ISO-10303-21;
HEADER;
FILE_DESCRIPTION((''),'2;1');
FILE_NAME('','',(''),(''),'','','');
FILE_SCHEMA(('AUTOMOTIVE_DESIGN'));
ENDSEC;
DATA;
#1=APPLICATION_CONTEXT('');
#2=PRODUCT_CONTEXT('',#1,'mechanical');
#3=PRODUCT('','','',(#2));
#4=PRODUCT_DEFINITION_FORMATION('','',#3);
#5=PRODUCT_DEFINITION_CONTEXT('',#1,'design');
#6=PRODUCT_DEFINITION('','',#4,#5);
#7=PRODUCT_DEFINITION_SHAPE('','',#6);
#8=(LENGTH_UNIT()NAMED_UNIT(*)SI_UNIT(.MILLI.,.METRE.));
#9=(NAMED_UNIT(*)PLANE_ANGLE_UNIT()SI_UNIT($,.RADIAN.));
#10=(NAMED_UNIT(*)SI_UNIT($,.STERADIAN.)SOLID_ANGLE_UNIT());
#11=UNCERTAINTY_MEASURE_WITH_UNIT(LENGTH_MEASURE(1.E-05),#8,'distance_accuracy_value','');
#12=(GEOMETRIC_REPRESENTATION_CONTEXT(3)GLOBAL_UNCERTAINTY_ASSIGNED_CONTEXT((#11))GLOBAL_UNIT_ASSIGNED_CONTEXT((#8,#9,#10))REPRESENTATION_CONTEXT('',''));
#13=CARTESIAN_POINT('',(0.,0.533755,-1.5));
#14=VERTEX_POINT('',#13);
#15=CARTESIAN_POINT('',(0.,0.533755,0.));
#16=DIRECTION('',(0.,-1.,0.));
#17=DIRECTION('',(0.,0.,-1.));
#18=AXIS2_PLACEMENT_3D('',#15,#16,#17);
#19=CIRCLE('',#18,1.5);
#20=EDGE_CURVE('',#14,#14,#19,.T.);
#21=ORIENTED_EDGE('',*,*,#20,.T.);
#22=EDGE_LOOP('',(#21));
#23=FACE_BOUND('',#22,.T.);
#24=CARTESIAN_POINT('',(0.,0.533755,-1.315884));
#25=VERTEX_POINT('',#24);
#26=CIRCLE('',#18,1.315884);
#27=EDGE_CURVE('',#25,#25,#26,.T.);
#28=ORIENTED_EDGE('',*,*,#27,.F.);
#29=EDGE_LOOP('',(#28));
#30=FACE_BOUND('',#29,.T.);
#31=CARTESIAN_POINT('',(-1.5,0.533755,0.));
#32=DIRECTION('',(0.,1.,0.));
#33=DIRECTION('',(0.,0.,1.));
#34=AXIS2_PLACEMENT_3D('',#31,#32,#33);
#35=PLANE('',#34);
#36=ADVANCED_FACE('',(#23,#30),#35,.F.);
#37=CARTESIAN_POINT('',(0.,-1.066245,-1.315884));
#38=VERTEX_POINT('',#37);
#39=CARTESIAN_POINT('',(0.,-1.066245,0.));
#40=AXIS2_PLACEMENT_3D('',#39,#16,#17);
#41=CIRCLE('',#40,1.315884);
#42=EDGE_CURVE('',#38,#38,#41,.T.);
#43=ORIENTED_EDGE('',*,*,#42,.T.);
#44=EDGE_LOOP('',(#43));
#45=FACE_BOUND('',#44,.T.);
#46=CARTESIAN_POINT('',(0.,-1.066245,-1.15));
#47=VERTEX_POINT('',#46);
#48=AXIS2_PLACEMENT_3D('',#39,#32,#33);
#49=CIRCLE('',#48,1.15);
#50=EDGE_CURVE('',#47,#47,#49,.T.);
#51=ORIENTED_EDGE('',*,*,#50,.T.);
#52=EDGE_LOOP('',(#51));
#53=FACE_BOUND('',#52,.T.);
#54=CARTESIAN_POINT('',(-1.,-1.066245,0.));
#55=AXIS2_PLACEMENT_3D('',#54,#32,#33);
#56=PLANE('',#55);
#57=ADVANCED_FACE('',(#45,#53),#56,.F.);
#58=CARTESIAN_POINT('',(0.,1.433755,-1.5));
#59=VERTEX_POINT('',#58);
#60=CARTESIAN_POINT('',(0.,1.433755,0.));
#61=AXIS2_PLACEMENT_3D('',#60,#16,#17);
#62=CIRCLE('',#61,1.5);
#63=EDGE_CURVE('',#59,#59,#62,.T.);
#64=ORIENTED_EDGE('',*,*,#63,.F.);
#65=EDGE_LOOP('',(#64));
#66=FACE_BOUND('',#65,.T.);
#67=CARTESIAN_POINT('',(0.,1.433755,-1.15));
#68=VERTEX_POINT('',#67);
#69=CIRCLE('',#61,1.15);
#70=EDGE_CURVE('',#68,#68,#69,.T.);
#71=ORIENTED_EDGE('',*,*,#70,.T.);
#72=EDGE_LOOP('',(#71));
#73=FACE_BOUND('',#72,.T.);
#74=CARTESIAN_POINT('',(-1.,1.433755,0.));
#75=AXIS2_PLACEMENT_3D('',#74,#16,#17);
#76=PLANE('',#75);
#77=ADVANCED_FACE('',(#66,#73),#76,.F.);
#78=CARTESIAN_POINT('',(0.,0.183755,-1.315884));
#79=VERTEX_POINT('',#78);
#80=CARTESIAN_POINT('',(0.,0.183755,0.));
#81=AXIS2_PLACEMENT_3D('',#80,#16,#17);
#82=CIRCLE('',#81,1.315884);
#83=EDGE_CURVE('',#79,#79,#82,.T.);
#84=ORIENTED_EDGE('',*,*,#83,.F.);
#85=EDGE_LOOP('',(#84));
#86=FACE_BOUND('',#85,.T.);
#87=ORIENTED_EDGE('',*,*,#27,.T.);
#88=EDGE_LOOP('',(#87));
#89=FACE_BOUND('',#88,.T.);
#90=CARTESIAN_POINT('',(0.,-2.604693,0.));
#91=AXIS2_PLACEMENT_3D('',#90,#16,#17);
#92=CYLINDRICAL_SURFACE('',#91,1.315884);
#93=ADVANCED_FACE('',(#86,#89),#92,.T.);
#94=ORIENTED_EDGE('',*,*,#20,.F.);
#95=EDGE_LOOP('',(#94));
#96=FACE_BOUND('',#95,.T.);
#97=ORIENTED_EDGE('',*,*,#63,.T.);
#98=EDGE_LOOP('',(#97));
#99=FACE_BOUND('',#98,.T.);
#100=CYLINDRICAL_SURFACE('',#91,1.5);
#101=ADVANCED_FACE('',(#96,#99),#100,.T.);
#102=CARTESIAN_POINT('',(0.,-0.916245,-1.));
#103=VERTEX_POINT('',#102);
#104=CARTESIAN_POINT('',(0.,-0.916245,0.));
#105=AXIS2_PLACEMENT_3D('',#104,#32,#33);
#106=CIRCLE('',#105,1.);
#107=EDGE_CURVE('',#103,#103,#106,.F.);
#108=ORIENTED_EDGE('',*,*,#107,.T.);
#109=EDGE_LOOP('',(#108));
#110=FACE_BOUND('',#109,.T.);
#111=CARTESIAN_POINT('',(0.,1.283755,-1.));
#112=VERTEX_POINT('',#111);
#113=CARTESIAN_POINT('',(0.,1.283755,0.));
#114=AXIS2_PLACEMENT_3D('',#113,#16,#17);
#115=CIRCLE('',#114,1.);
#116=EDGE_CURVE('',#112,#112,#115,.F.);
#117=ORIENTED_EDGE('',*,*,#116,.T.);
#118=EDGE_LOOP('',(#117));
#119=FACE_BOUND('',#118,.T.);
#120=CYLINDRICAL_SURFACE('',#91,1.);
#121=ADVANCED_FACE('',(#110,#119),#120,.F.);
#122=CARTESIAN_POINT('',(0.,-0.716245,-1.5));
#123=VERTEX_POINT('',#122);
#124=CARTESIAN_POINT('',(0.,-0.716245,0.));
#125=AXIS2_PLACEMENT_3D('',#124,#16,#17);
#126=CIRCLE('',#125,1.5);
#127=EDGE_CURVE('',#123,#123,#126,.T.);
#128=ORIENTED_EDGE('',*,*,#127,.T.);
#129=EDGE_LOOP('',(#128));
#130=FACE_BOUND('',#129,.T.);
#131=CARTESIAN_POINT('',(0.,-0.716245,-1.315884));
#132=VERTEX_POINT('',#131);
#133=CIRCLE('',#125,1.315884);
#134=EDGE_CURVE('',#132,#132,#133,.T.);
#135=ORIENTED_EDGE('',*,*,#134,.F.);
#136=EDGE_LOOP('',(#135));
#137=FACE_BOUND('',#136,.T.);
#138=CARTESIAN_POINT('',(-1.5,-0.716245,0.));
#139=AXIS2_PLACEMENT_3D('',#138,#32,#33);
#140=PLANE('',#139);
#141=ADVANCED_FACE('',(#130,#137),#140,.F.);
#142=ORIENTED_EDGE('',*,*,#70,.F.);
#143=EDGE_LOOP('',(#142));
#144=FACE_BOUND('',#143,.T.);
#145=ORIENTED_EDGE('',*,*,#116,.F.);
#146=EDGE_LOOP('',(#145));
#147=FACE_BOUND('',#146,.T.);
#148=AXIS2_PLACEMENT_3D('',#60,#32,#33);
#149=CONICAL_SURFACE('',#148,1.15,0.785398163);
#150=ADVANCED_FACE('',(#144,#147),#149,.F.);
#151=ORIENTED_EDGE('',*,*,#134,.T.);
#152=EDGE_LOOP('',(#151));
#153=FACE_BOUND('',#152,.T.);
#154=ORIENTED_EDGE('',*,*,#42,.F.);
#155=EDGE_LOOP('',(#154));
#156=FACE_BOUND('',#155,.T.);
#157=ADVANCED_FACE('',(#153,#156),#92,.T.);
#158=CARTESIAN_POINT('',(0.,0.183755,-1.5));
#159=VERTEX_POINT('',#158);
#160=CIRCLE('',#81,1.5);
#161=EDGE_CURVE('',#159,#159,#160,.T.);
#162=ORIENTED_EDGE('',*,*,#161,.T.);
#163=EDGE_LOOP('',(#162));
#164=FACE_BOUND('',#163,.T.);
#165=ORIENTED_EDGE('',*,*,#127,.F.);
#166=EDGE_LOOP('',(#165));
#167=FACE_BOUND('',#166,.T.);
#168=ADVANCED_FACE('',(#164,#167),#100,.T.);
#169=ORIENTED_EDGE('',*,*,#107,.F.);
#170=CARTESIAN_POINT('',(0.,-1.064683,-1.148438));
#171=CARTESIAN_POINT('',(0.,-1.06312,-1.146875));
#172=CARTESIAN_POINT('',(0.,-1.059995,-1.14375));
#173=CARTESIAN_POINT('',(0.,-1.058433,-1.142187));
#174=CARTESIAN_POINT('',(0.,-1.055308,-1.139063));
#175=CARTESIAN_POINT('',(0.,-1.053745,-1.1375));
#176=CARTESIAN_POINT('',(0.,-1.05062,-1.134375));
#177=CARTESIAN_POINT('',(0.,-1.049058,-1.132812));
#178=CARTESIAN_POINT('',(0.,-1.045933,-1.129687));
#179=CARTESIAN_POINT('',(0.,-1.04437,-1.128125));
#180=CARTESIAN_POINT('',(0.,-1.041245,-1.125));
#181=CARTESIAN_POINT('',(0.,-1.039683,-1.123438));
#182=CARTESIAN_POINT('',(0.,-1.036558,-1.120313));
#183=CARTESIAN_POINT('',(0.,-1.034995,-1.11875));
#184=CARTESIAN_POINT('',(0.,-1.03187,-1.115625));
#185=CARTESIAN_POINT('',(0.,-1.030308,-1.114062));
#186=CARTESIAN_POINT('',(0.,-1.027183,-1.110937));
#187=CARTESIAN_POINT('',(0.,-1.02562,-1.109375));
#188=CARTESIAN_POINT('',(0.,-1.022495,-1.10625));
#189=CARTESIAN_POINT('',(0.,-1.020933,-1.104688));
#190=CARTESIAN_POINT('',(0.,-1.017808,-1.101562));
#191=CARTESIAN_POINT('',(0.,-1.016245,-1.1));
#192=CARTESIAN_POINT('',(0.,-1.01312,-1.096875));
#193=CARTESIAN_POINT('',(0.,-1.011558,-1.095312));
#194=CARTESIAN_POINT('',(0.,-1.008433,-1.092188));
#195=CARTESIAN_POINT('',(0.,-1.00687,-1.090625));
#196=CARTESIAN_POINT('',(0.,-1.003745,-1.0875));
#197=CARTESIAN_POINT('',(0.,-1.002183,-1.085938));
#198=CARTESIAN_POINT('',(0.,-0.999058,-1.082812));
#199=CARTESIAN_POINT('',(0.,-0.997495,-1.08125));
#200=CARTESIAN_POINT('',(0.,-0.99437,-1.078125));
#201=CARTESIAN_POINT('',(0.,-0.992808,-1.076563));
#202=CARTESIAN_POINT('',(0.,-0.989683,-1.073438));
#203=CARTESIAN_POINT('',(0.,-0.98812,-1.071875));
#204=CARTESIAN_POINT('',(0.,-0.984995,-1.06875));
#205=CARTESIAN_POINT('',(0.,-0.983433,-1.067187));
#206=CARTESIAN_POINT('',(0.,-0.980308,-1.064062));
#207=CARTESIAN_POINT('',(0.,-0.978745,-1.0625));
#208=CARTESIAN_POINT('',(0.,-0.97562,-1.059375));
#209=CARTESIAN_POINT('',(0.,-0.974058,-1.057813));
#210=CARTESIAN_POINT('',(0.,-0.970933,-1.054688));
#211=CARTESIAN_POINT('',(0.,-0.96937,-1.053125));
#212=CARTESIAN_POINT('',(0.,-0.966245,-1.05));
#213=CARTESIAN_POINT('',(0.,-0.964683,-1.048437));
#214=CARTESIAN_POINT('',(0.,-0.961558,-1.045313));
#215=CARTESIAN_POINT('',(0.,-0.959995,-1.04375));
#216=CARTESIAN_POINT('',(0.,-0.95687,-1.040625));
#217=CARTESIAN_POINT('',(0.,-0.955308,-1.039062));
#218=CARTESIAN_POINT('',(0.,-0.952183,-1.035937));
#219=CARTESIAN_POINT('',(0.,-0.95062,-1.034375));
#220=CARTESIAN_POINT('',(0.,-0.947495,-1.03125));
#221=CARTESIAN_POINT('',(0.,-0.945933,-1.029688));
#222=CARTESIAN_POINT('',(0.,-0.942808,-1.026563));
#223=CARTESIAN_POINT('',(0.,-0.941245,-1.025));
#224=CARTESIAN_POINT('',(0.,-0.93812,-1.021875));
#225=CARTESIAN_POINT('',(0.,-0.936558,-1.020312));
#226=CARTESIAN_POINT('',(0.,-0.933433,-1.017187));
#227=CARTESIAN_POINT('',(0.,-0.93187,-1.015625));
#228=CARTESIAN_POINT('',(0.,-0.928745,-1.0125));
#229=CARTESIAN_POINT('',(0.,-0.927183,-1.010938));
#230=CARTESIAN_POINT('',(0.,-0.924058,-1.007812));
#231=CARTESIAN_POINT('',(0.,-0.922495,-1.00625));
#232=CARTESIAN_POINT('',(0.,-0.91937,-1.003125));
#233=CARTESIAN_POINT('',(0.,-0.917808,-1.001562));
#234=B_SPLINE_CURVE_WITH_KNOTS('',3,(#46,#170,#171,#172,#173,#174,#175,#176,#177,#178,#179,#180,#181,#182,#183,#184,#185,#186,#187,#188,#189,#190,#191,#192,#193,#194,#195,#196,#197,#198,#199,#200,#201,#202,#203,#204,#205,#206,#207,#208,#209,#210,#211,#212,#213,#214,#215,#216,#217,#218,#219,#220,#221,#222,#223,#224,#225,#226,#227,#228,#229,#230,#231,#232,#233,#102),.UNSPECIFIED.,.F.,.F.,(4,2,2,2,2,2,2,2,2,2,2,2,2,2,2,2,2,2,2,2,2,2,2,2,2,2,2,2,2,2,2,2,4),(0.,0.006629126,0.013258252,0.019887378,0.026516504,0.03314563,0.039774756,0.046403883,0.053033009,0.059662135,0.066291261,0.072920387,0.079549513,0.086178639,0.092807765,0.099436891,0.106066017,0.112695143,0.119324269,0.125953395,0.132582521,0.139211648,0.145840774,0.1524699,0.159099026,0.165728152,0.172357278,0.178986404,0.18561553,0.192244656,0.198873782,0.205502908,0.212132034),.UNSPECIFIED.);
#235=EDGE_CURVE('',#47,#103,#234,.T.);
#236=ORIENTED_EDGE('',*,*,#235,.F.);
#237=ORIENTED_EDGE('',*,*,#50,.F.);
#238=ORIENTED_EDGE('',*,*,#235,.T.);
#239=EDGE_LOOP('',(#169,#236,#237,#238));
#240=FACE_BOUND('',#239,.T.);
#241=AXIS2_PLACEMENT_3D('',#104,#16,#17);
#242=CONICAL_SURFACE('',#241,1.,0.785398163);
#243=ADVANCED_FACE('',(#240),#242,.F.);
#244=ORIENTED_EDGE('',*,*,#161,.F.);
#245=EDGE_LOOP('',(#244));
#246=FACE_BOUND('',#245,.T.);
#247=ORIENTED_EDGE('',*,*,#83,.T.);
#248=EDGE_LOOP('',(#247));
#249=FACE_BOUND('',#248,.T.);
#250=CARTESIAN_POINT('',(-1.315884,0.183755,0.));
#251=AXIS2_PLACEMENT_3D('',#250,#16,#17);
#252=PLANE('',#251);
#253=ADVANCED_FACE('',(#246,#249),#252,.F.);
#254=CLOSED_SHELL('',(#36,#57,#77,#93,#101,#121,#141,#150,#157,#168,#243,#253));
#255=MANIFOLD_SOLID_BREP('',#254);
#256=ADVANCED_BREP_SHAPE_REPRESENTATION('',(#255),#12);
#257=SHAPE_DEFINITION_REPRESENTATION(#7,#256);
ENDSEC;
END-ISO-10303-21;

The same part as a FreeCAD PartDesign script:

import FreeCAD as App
import Part
import Sketcher

V = App.Vector
Q = App.Units.Quantity


def edges_at(feature, points):
    """Names of the edges that pass closest to the given points."""
    edges = feature.Shape.Edges
    near = lambda p: min(range(len(edges)), key=lambda i: edges[i].distToShape(Part.Vertex(*p))[0])
    return sorted({f"Edge{near(p) + 1}" for p in points})

doc = App.newDocument("Part")
body = doc.addObject("PartDesign::Body", "Body")

# Sketch on XY plane
sketch1 = body.newObject("Sketcher::SketchObject", "Sketch")
sketch1.AttachmentSupport = (doc.getObject("XY_Plane"), [""])
sketch1.MapMode = "FlatFace"
sketch1.addGeometry(Part.LineSegment(V(-1, 1.43, 0), V(-1.5, 1.43, 0)), False)
sketch1.addGeometry(Part.LineSegment(V(-1.5, 1.43, 0), V(-1.5, 0.53, 0)), False)
sketch1.addGeometry(Part.LineSegment(V(-1.5, 0.53, 0), V(-1.32, 0.53, 0)), False)
sketch1.addGeometry(Part.LineSegment(V(-1.32, 0.53, 0), V(-1.32, 0.18, 0)), False)
sketch1.addGeometry(Part.LineSegment(V(-1.32, 0.18, 0), V(-1.5, 0.18, 0)), False)
sketch1.addGeometry(Part.LineSegment(V(-1.5, 0.18, 0), V(-1.5, -0.72, 0)), False)
sketch1.addGeometry(Part.LineSegment(V(-1.5, -0.72, 0), V(-1.32, -0.72, 0)), False)
sketch1.addGeometry(Part.LineSegment(V(-1.32, -0.72, 0), V(-1.32, -1.07, 0)), False)
sketch1.addGeometry(Part.LineSegment(V(-1.32, -1.07, 0), V(-1, -1.07, 0)), False)
sketch1.addGeometry(Part.LineSegment(V(-1, -1.07, 0), V(-1, 1.43, 0)), False)
sketch1.addConstraint(Sketcher.Constraint("Coincident", 0, 2, 1, 1))
sketch1.addConstraint(Sketcher.Constraint("Coincident", 1, 2, 2, 1))
sketch1.addConstraint(Sketcher.Constraint("Coincident", 2, 2, 3, 1))
sketch1.addConstraint(Sketcher.Constraint("Coincident", 3, 2, 4, 1))
sketch1.addConstraint(Sketcher.Constraint("Coincident", 4, 2, 5, 1))
sketch1.addConstraint(Sketcher.Constraint("Coincident", 5, 2, 6, 1))
sketch1.addConstraint(Sketcher.Constraint("Coincident", 6, 2, 7, 1))
sketch1.addConstraint(Sketcher.Constraint("Coincident", 7, 2, 8, 1))
sketch1.addConstraint(Sketcher.Constraint("Coincident", 8, 2, 9, 1))
sketch1.addConstraint(Sketcher.Constraint("Coincident", 9, 2, 0, 1))
sketch1.addConstraint(Sketcher.Constraint("Horizontal", 0))
sketch1.addConstraint(Sketcher.Constraint("Vertical", 1))
sketch1.addConstraint(Sketcher.Constraint("Horizontal", 2))
sketch1.addConstraint(Sketcher.Constraint("Vertical", 3))
sketch1.addConstraint(Sketcher.Constraint("Horizontal", 4))
sketch1.addConstraint(Sketcher.Constraint("Vertical", 5))
sketch1.addConstraint(Sketcher.Constraint("Horizontal", 6))
sketch1.addConstraint(Sketcher.Constraint("Vertical", 7))
sketch1.addConstraint(Sketcher.Constraint("Horizontal", 8))
sketch1.addConstraint(Sketcher.Constraint("Vertical", 9))
sketch1.addConstraint(Sketcher.Constraint("Vertical", 1, 2, 4, 2))
sketch1.addConstraint(Sketcher.Constraint("Vertical", 3, 2, 6, 2))
sketch1.addConstraint(Sketcher.Constraint("Equal", 1, 5))
sketch1.addConstraint(Sketcher.Constraint("Equal", 3, 7))
sketch1.addConstraint(Sketcher.Constraint("DistanceX", 0, 2, 0, 1, Q("0.5 mm")))
sketch1.addConstraint(Sketcher.Constraint("DistanceY", 1, 2, 1, 1, Q("0.9 mm")))
sketch1.addConstraint(Sketcher.Constraint("DistanceY", 9, 1, 9, 2, Q("2.5 mm")))
sketch1.addConstraint(Sketcher.Constraint("DistanceX", 8, 2, -1, 1, Q("1 mm")))
sketch1.addConstraint(Sketcher.Constraint("DistanceX", 2, 1, 2, 2, Q("0.184116 mm")))
sketch1.addConstraint(Sketcher.Constraint("DistanceY", -1, 1, 0, 2, Q("1.433755 mm")))
revolution = body.newObject("PartDesign::Revolution", "Revolution")
revolution.Profile = sketch1
revolution.ReferenceAxis = (sketch1, ["V_Axis"])
revolution.Angle = 360
doc.recompute()

chamfer = body.newObject("PartDesign::Chamfer", "Chamfer")
chamfer.Base = (revolution, edges_at(revolution, [(0, 1.434, 1), (0, -1.066, 1)]))
chamfer.Size = 0.15

doc.recompute()
